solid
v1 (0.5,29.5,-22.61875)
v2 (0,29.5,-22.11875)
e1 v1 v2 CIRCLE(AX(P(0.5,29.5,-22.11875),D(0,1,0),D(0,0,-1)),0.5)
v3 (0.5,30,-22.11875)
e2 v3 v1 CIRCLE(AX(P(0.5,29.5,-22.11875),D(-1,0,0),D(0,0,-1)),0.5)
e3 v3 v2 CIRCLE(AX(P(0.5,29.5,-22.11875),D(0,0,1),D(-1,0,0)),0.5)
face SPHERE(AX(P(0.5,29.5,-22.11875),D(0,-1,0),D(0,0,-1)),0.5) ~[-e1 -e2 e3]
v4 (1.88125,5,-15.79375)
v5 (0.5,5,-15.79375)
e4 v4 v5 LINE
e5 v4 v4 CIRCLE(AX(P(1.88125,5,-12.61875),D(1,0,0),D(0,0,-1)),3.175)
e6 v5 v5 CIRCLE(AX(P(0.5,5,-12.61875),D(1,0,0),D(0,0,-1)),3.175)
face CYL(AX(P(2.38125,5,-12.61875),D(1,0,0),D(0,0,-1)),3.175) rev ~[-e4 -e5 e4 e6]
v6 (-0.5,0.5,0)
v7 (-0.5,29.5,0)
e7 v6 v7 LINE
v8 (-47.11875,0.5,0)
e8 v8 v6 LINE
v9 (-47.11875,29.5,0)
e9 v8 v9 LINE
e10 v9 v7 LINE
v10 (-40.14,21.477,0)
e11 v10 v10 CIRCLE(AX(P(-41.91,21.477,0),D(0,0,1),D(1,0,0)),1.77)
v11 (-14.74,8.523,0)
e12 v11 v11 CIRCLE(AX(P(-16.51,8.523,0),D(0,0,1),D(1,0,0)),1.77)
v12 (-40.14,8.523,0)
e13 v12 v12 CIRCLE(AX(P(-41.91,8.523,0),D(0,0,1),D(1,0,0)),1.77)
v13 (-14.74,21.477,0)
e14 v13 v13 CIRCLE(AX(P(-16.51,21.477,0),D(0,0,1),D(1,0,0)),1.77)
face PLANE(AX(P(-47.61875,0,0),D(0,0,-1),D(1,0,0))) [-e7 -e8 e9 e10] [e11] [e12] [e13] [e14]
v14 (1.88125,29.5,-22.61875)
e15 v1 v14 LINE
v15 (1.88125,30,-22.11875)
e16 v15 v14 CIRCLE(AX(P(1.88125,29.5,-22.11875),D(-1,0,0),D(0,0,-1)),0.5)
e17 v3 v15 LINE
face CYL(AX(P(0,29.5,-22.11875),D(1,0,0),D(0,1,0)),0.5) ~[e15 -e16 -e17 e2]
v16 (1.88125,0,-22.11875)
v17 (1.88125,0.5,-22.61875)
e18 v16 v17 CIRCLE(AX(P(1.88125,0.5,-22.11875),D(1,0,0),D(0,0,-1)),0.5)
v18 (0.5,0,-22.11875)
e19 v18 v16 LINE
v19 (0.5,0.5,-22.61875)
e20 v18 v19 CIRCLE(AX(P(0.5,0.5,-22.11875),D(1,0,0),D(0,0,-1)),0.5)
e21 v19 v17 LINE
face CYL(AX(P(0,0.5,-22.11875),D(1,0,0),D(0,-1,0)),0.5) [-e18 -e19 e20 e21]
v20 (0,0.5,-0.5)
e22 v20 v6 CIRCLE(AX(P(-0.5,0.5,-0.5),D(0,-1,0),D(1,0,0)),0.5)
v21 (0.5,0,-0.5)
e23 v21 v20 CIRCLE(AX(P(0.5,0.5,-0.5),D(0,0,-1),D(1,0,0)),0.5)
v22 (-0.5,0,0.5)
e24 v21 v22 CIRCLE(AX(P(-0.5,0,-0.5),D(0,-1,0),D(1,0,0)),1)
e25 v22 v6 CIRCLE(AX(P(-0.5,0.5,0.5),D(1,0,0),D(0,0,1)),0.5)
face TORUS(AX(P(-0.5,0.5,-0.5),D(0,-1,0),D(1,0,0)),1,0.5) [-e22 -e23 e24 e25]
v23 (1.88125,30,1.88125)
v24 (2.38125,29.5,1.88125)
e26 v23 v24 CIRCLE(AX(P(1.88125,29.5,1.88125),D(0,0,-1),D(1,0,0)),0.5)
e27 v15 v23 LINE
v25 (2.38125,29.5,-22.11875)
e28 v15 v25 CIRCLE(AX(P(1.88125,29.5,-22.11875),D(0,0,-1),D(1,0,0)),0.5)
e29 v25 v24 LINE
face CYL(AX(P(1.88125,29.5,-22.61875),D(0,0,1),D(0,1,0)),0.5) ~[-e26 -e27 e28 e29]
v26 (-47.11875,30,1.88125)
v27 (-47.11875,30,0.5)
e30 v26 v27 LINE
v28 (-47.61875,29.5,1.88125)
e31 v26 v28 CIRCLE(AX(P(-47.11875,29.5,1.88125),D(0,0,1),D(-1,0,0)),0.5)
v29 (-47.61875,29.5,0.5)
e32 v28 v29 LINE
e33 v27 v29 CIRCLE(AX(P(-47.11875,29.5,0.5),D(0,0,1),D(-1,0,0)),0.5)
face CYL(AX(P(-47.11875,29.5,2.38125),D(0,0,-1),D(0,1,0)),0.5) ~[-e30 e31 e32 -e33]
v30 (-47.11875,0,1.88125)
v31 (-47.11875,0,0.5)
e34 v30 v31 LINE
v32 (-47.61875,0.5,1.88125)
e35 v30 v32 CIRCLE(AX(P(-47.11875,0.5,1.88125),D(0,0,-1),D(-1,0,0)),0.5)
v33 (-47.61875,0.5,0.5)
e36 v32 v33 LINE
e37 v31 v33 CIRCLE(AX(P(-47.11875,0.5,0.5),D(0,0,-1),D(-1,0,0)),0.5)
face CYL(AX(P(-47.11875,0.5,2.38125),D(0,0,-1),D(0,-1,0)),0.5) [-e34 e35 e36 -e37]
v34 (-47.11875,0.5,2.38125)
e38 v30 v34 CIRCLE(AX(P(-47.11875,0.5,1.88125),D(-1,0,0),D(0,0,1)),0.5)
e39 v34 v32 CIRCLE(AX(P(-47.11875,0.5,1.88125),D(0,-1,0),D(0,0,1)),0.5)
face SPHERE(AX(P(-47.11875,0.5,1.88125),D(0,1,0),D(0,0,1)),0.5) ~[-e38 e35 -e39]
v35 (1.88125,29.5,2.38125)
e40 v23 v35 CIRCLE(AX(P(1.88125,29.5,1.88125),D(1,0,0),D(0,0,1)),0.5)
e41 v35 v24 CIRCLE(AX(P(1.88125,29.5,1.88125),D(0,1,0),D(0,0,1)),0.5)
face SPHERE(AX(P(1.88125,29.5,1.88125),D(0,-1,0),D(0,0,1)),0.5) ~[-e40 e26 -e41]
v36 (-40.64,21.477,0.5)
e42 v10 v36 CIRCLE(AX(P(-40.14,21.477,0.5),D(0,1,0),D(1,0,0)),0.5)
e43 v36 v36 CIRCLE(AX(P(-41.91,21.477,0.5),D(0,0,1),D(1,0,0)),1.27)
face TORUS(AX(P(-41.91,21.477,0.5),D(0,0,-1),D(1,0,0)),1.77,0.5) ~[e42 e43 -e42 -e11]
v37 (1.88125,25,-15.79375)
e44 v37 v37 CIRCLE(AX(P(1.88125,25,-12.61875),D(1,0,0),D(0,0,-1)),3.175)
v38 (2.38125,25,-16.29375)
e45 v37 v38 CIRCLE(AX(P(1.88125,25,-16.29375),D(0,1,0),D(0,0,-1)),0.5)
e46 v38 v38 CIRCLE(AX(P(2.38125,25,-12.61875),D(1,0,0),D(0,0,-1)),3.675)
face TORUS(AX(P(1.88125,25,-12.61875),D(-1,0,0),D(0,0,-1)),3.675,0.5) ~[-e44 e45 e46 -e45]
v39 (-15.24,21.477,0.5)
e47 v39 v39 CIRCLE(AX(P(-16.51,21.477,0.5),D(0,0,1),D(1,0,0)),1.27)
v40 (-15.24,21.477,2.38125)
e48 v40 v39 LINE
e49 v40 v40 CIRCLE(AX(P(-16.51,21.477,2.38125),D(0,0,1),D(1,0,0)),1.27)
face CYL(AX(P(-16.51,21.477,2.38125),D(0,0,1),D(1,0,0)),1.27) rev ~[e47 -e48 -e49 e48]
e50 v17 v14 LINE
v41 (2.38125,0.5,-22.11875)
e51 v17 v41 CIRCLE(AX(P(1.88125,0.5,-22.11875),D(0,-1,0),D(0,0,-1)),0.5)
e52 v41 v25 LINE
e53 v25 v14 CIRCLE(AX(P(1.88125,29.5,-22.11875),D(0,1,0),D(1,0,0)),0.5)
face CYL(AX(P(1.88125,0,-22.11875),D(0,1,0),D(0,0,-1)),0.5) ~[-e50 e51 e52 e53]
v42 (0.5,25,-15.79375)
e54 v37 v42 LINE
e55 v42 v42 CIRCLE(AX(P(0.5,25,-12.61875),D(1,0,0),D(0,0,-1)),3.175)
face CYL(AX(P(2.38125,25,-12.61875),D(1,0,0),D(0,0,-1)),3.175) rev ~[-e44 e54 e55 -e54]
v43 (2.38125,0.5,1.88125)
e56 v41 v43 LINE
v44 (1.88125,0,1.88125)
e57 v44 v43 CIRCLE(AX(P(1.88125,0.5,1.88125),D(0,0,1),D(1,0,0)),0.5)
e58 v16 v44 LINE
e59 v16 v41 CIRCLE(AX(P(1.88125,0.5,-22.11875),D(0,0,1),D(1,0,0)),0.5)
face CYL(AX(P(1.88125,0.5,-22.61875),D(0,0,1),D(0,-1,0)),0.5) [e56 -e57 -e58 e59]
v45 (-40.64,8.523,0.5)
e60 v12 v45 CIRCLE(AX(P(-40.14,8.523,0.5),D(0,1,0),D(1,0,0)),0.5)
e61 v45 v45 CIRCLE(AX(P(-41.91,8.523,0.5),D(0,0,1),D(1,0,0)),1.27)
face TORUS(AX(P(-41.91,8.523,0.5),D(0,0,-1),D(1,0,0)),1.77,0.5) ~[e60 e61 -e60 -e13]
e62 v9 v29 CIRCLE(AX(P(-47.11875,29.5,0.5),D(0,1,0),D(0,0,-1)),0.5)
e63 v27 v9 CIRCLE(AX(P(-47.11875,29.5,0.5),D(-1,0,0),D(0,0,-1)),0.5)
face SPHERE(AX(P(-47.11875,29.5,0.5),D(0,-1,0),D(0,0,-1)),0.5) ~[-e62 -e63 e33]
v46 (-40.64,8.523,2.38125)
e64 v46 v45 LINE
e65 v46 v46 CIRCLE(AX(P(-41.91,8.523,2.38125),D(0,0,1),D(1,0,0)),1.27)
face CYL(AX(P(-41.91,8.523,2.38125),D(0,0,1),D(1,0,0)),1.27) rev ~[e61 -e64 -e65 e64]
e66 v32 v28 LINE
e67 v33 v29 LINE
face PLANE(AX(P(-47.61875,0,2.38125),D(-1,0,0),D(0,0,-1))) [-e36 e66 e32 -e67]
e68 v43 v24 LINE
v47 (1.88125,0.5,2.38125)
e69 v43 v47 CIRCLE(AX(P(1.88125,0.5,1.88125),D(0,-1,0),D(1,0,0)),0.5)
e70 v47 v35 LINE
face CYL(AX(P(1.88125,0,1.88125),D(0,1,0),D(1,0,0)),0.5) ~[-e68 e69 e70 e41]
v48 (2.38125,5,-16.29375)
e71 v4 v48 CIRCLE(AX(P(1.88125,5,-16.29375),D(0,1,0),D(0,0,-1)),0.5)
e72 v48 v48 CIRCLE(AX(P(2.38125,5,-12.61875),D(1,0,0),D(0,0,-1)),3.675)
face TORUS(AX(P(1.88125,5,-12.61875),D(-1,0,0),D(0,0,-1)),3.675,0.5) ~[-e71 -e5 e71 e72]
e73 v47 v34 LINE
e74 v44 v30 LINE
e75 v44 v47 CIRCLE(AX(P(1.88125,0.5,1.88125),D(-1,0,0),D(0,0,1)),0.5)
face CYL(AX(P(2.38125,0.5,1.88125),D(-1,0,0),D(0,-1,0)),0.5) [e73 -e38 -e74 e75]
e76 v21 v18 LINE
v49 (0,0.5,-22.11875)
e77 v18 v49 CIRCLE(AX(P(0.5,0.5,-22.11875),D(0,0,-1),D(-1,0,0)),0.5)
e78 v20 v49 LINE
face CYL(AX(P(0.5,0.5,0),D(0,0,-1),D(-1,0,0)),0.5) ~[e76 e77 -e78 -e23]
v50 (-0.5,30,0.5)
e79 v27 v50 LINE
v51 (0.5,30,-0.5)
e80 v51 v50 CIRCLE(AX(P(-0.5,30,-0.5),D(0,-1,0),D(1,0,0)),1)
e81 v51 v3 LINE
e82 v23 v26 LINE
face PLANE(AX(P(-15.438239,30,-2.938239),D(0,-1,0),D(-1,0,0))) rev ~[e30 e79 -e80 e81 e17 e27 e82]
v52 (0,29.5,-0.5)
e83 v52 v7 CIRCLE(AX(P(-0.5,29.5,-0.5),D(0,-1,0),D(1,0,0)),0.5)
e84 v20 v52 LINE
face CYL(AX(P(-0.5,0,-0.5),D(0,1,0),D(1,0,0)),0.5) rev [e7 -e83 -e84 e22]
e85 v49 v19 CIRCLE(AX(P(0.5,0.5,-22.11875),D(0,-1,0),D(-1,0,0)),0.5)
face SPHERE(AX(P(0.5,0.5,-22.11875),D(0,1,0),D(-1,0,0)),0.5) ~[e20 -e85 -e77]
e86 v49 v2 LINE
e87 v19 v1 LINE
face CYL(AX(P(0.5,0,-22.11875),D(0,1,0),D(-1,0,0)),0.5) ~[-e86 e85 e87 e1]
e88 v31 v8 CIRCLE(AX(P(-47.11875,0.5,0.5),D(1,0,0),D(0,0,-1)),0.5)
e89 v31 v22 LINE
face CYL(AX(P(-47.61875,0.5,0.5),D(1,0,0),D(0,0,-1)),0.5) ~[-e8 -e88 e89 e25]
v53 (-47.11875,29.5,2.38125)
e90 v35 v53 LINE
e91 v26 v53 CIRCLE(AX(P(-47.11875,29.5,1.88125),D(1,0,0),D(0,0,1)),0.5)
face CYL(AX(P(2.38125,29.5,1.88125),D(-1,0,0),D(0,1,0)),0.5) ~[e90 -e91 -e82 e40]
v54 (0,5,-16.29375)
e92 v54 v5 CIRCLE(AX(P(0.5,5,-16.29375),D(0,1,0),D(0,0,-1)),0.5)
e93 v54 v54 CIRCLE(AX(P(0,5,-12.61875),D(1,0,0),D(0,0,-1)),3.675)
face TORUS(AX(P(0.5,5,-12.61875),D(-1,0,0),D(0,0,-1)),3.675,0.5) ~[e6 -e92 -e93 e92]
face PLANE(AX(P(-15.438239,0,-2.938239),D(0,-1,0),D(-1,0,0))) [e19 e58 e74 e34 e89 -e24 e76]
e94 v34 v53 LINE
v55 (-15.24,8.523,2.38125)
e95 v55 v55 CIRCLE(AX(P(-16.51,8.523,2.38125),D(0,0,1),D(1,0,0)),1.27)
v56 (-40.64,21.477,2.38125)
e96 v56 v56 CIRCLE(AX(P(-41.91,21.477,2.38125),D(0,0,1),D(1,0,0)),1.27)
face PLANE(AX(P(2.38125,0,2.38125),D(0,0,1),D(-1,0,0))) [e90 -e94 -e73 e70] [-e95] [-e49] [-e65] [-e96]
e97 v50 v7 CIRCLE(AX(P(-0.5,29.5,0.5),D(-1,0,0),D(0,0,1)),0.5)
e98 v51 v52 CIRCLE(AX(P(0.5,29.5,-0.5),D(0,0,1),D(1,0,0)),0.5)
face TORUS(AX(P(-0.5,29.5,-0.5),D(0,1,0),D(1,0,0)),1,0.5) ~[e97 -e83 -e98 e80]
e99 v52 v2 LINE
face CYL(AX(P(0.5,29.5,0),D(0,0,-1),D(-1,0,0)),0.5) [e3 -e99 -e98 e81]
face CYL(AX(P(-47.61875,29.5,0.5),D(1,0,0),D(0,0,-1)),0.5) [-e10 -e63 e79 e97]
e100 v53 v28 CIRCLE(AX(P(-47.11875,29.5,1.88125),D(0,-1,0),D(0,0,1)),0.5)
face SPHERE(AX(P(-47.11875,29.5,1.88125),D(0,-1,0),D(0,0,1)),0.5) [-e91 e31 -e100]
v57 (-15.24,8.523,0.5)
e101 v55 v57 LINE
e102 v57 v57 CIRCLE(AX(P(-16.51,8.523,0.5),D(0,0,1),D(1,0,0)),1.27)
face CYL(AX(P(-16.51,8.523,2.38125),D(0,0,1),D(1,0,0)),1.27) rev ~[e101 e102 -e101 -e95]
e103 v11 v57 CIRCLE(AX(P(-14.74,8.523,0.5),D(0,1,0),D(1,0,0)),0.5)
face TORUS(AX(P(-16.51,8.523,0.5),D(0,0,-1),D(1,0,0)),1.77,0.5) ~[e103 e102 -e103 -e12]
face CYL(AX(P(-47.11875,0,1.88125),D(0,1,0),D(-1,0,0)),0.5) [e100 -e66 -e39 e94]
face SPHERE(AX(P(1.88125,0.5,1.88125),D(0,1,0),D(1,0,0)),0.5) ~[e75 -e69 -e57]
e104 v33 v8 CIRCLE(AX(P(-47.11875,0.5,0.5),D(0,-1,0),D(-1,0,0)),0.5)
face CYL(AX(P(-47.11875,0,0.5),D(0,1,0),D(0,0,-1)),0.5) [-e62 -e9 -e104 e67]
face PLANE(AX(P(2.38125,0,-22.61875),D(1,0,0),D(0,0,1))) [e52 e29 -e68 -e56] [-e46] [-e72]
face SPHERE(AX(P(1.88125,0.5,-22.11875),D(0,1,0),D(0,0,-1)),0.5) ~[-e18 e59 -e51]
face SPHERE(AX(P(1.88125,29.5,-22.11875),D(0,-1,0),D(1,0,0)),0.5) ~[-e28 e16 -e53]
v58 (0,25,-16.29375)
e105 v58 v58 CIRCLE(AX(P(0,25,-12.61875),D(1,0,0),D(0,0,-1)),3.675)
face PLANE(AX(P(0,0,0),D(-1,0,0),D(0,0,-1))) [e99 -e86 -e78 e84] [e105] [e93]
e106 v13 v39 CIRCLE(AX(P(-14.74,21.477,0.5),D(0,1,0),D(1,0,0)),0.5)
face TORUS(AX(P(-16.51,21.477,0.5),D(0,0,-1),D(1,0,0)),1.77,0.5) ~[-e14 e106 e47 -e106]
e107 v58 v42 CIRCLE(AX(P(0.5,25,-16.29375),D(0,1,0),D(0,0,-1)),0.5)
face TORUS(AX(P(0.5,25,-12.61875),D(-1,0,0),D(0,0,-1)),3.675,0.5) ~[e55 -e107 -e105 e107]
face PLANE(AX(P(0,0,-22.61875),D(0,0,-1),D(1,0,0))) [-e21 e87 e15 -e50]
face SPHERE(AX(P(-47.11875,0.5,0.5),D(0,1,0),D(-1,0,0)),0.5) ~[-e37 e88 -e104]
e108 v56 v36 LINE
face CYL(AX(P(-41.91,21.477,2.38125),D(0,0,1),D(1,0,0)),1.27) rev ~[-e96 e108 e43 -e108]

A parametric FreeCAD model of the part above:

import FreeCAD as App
import Part
import Sketcher
from FreeCAD import Vector


def edges_at(feature, points):
    """Names of the edges that pass closest to the given points."""
    edges = feature.Shape.Edges
    near = lambda p: min(range(len(edges)), key=lambda i: edges[i].distToShape(Part.Vertex(*p))[0])
    return sorted({f"Edge{near(p) + 1}" for p in points})


def add_polygon(sketch, points):
    """Adds a closed chain of lines whose ends are joined by coincident constraints."""
    first, n = sketch.GeometryCount, len(points)
    for a, b in zip(points, points[1:] + points[:1]):
        sketch.addGeometry(Part.LineSegment(App.Vector(*a, 0), App.Vector(*b, 0)), False)
    for i in range(n):
        sketch.addConstraint(Sketcher.Constraint("Coincident", first + i, 2, first + (i + 1) % n, 1))

doc = App.newDocument("Part")
params = doc.addObject("Spreadsheet::Sheet", "Params")
for row, (alias, value) in enumerate([
    ("sketch1_width", "50 mm"),
    ("sketch1_height", "25 mm"),
    ("pad1_length", "30 mm"),
    ("sketch2_diameter", "2.54 mm"),
    ("sketch3_diameter", "6.35 mm"),
    ("fillet_radius", "0.5 mm"),
], start=1):
    params.set(f"A{row}", alias)
    params.set(f"B{row}", "=" + value)
    params.setAlias(f"B{row}", alias)

body = doc.addObject("PartDesign::Body", "Body")

sketch1 = body.newObject("Sketcher::SketchObject", "Sketch")
sketch1.AttachmentSupport = (doc.getObject("XZ_Plane"), [""])
sketch1.MapMode = "FlatFace"
add_polygon(sketch1, [(0, -22.61875), (0, 0), (-47.61875, 0), (-47.61875, 2.38125), (2.38125, 2.38125), (2.38125, -22.61875)])
sketch1.addConstraint([
    Sketcher.Constraint("Vertical", 0),
    Sketcher.Constraint("Horizontal", 1),
    Sketcher.Constraint("Vertical", 2),
    Sketcher.Constraint("Horizontal", 3),
    Sketcher.Constraint("Vertical", 4),
    Sketcher.Constraint("Horizontal", 5),
    Sketcher.Constraint("Coincident", 0, 2, -1, 1),
    Sketcher.Constraint("Equal", 5, 2),
    Sketcher.Constraint("DistanceX", 3, 1, 3, 2, 50.0),
    Sketcher.Constraint("DistanceY", 4, 2, 4, 1, 25.0),
    Sketcher.Constraint("DistanceX", 1, 2, 1, 1, 47.61875),
])
sketch1.setExpression("Constraints[14]", "Params.sketch1_width")
sketch1.setExpression("Constraints[15]", "Params.sketch1_height")
pad1 = body.newObject("PartDesign::Pad", "Pad")
pad1.Profile = sketch1
pad1.setExpression("Length", "Params.pad1_length")
pad1.Reversed = True

sketch2 = body.newObject("Sketcher::SketchObject", "Sketch001")
sketch2.AttachmentSupport = (doc.getObject("XY_Plane"), [""])
sketch2.MapMode = "FlatFace"
sketch2.AttachmentOffset = App.Placement(Vector(0, 0, 2.38125), App.Rotation())
sketch2.addGeometry([
    Part.Circle(Vector(-41.91, 8.523, 0), Vector(0, 0, 1), 1.27),
    Part.Circle(Vector(-16.51, 8.523, 0), Vector(0, 0, 1), 1.27),
    Part.Circle(Vector(-16.51, 21.477, 0), Vector(0, 0, 1), 1.27),
    Part.Circle(Vector(-41.91, 21.477, 0), Vector(0, 0, 1), 1.27),
], False)
sketch2.addConstraint([
    Sketcher.Constraint("Equal", 0, 1),
    Sketcher.Constraint("Equal", 1, 2),
    Sketcher.Constraint("Equal", 2, 3),
    Sketcher.Constraint("Horizontal", 0, 3, 1, 3),
    Sketcher.Constraint("Horizontal", 2, 3, 3, 3),
    Sketcher.Constraint("Vertical", 1, 3, 2, 3),
    Sketcher.Constraint("Vertical", 0, 3, 3, 3),
    Sketcher.Constraint("Diameter", 0, 2.54),
    Sketcher.Constraint("DistanceX", 0, 3, 1, 3, 25.4),
    Sketcher.Constraint("DistanceX", 0, 3, -1, 1, 41.91),
    Sketcher.Constraint("DistanceY", -1, 1, 0, 3, 8.523),
    Sketcher.Constraint("DistanceY", -1, 1, 2, 3, 21.477),
])
sketch2.setExpression("Constraints[7]", "Params.sketch2_diameter")
pocket1 = body.newObject("PartDesign::Pocket", "Pocket")
pocket1.Profile = sketch2
pocket1.Type = "ThroughAll"

sketch3 = body.newObject("Sketcher::SketchObject", "Sketch002")
sketch3.AttachmentSupport = (doc.getObject("YZ_Plane"), [""])
sketch3.MapMode = "FlatFace"
sketch3.AttachmentOffset = App.Placement(Vector(0, 0, 2.38125), App.Rotation())
sketch3.addGeometry([
    Part.Circle(Vector(25, -12.61875, 0), Vector(0, 0, 1), 3.175),
    Part.Circle(Vector(5, -12.61875, 0), Vector(0, 0, 1), 3.175),
], False)
sketch3.addConstraint([
    Sketcher.Constraint("Equal", 0, 1),
    Sketcher.Constraint("Horizontal", 0, 3, 1, 3),
    Sketcher.Constraint("Diameter", 0, 6.35),
    Sketcher.Constraint("DistanceX", -1, 1, 0, 3, 25.0),
    Sketcher.Constraint("DistanceX", -1, 1, 1, 3, 5.0),
    Sketcher.Constraint("DistanceY", 0, 3, -1, 1, 12.61875),
])
sketch3.setExpression("Constraints[2]", "Params.sketch3_diameter")
pocket2 = body.newObject("PartDesign::Pocket", "Pocket001")
pocket2.Profile = sketch3
pocket2.Type = "ThroughAll"
doc.recompute()

fillet = body.newObject("PartDesign::Fillet", "Fillet")
fillet.Base = (pocket2, edges_at(pocket2, [
    (0, 15, 0),
    (0, 15, -22.619),
    (2.381, 15, -22.619),
    (2.381, 15, 2.381),
    (-47.619, 15, 2.381),
    (-47.619, 15, 0),
    (-22.619, 30, 2.381),
    (2.381, 30, -10.119),
    (1.191, 30, -22.619),
    (-43.18, 21.477, 0),
    (0, 30, -11.309),
    (-17.78, 21.477, 0),
    (-17.78, 8.523, 0),
    (-43.18, 8.523, 0),
    (0, 25, -9.444),
    (2.381, 25, -9.444),
    (0, 5, -9.444),
    (2.381, 5, -9.444),
    (-23.809, 30, 0),
    (0, 0, -11.309),
    (1.191, 0, -22.619),
    (2.381, 0, -10.119),
    (-22.619, 0, 2.381),
    (-47.619, 0, 1.191),
    (-23.809, 0, 0),
    (-47.619, 30, 1.191),
]))
fillet.setExpression("Radius", "Params.fillet_radius")

doc.recompute()
